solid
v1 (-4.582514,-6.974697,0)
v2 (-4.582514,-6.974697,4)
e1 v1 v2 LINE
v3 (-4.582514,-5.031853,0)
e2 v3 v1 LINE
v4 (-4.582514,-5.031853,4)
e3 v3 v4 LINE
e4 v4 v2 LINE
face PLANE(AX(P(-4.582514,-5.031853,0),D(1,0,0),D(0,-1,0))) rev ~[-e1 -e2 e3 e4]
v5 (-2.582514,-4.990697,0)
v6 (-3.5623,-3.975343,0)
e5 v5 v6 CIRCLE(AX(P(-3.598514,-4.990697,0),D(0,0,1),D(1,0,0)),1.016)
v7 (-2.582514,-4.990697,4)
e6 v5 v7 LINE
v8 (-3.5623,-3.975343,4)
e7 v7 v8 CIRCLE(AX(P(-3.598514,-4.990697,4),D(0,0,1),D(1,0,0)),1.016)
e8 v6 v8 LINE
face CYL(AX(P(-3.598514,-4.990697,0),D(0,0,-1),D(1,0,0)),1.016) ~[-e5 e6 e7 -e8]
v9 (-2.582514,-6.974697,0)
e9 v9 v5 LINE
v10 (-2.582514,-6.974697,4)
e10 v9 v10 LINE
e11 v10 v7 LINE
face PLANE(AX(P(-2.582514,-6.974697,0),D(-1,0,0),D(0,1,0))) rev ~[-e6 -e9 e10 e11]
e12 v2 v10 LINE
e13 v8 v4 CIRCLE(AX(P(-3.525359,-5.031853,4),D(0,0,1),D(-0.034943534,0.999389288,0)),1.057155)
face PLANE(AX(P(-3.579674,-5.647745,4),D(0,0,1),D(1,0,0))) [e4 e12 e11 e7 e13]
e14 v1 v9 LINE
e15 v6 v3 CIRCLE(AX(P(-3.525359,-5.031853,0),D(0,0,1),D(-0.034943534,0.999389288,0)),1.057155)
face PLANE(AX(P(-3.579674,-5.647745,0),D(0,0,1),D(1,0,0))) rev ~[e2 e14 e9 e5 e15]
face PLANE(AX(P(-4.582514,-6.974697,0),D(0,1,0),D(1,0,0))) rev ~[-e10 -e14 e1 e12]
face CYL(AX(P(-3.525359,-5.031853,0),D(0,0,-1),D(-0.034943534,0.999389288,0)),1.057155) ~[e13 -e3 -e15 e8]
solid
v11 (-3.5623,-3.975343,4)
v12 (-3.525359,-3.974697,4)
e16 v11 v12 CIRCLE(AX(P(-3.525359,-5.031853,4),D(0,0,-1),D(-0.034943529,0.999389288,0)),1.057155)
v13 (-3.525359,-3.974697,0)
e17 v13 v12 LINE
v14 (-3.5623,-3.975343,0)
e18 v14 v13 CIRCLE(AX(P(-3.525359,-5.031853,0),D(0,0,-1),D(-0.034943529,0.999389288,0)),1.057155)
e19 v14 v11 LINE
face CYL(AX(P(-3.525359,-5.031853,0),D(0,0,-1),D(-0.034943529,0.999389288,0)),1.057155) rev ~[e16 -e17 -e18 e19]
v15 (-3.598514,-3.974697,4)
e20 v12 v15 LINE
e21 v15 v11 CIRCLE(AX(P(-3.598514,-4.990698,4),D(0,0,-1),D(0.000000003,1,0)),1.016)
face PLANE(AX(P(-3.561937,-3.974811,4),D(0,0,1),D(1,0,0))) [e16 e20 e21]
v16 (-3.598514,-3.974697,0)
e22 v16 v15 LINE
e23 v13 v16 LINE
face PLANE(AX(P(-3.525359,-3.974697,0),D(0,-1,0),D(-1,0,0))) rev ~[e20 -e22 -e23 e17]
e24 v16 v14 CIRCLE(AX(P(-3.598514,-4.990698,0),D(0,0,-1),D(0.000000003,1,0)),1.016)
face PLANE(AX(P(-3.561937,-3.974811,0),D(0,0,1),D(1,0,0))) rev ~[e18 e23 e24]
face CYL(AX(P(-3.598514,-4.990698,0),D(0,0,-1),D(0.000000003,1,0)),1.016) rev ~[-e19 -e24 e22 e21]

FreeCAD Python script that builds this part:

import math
import FreeCAD as App
import Part
import Sketcher

V = App.Vector
Q = App.Units.Quantity

doc = App.newDocument("Part")
body = doc.addObject("PartDesign::Body", "Body")

# Sketch on XY plane
sketch1 = body.newObject("Sketcher::SketchObject", "Sketch")
sketch1.AttachmentSupport = (doc.getObject("XY_Plane"), [""])
sketch1.MapMode = "FlatFace"
sketch1.addGeometry([
    Part.LineSegment(V(-4.6, -5, 0), V(-4.6, -7, 0)),  # 0
    Part.LineSegment(V(-4.6, -7, 0), V(-2.6, -7, 0)),  # 1
    Part.LineSegment(V(-2.6, -7, 0), V(-2.6, -5, 0)),  # 2
    Part.ArcOfCircle(Part.Circle(V(-3.6, -5, 0), V(0, 0, 1), 1), math.radians(0), math.radians(88)),  # 3
    Part.ArcOfCircle(Part.Circle(V(-3.5, -5, 0), V(0, 0, 1), 1.1), math.radians(92), math.radians(180)),  # 4
], False)
sketch1.addConstraint([
    Sketcher.Constraint("Coincident", 0, 2, 1, 1),
    Sketcher.Constraint("Coincident", 1, 2, 2, 1),
    Sketcher.Constraint("Tangent", 2, 2, 3, 1),
    Sketcher.Constraint("Coincident", 3, 2, 4, 1),
    Sketcher.Constraint("Tangent", 4, 2, 0, 1),
    Sketcher.Constraint("Vertical", 0),
    Sketcher.Constraint("Horizontal", 1),
    Sketcher.Constraint("Vertical", 2),
    Sketcher.Constraint("DistanceX", 1, 1, 1, 2, Q("2 mm")),
    Sketcher.Constraint("Radius", 3, Q("1.016 mm")),
    Sketcher.Constraint("DistanceY", 2, 1, 2, 2, Q("1.984 mm")),
    Sketcher.Constraint("Radius", 4, Q("1.057155 mm")),
    Sketcher.Constraint("DistanceX", 3, 2, -1, 1, Q("3.5623 mm")),
    Sketcher.Constraint("DistanceY", 0, 2, 0, 1, Q("1.942845 mm")),
    Sketcher.Constraint("DistanceY", 3, 3, -1, 1, Q("4.990697 mm")),
])
pad1 = body.newObject("PartDesign::Pad", "Pad")
pad1.Profile = sketch1
pad1.Length = 4
body2 = doc.addObject("PartDesign::Body", "Body001")

# Sketch on XY plane
sketch2 = body2.newObject("Sketcher::SketchObject", "Sketch001")
sketch2.AttachmentSupport = (doc.getObject("XY_Plane001"), [""])
sketch2.MapMode = "FlatFace"
sketch2.addGeometry([
    Part.ArcOfCircle(Part.Circle(V(-3.599, -4.991, 0), V(0, 0, 1), 1.016), math.radians(87.96), math.radians(90)),
    Part.ArcOfCircle(Part.Circle(V(-3.525, -5.032, 0), V(0, 0, 1), 1.057), math.radians(90), math.radians(92)),
    Part.LineSegment(V(-3.525, -3.975, 0), V(-3.599, -3.975, 0)),
], False)
sketch2.addConstraint([
    Sketcher.Constraint("Coincident", 0, 1, 1, 2),
    Sketcher.Constraint("Tangent", 1, 1, 2, 1),
    Sketcher.Constraint("Tangent", 2, 2, 0, 2),
    Sketcher.Constraint("Horizontal", 2),
    Sketcher.Constraint("Radius", 0, Q("1.016 mm")),
    Sketcher.Constraint("Radius", 1, Q("1.057155 mm")),
    Sketcher.Constraint("DistanceX", 0, 1, -1, 1, Q("3.5623 mm")),
    Sketcher.Constraint("DistanceX", 2, 2, 2, 1, Q("0.073155 mm")),
    Sketcher.Constraint("DistanceY", 0, 3, -1, 1, Q("4.990698 mm")),
])
pad2 = body2.newObject("PartDesign::Pad", "Pad001")
pad2.Profile = sketch2
pad2.Length = 4

doc.recompute()
